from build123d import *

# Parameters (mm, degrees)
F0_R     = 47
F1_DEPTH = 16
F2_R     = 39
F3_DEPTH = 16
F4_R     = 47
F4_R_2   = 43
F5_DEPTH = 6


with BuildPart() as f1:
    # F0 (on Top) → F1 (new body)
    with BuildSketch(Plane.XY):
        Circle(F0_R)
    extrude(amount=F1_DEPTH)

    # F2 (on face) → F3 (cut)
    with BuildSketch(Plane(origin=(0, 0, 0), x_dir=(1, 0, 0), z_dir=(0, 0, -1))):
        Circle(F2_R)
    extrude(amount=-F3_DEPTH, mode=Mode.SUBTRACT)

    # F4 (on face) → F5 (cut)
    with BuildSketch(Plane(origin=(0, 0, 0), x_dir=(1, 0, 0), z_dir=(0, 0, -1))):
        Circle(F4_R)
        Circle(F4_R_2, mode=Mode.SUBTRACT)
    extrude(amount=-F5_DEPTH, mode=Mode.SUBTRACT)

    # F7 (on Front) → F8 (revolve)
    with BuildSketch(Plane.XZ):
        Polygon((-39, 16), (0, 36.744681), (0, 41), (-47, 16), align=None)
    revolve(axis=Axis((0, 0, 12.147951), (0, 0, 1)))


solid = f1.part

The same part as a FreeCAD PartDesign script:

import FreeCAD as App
import Part
import Sketcher
Q = App.Units.Quantity


def add_polygon(sketch, points):
    """Adds a closed chain of lines whose ends are joined by coincident constraints."""
    first, n = sketch.GeometryCount, len(points)
    for a, b in zip(points, points[1:] + points[:1]):
        sketch.addGeometry(Part.LineSegment(App.Vector(*a, 0), App.Vector(*b, 0)), False)
    for i in range(n):
        sketch.addConstraint(Sketcher.Constraint("Coincident", first + i, 2, first + (i + 1) % n, 1))

doc = App.newDocument("Part")
body = doc.addObject("PartDesign::Body", "Body")

# Sketch on XY plane
sketch1 = body.newObject("Sketcher::SketchObject", "Sketch")
sketch1.AttachmentSupport = (doc.getObject("XY_Plane"), [""])
sketch1.MapMode = "FlatFace"
sketch1.addGeometry(Part.Circle(App.Vector(0, 0, 0), App.Vector(0, 0, 1), 47), False)
sketch1.addConstraint(Sketcher.Constraint("Coincident", 0, 3, -1, 1))
sketch1.addConstraint(Sketcher.Constraint("Diameter", 0, Q("94 mm")))
pad1 = body.newObject("PartDesign::Pad", "Pad")
pad1.Profile = sketch1
pad1.Length = 16

# Sketch on XY plane
sketch2 = body.newObject("Sketcher::SketchObject", "Sketch001")
sketch2.AttachmentSupport = (doc.getObject("XY_Plane"), [""])
sketch2.MapMode = "FlatFace"
sketch2.addGeometry(Part.Circle(App.Vector(0, 0, 0), App.Vector(0, 0, 1), 39), False)
sketch2.addConstraint(Sketcher.Constraint("Coincident", 0, 3, -1, 1))
sketch2.addConstraint(Sketcher.Constraint("Diameter", 0, Q("78 mm")))
pocket1 = body.newObject("PartDesign::Pocket", "Pocket")
pocket1.Profile = sketch2
pocket1.Length = 16
pocket1.Reversed = True

# Sketch on XY plane
sketch3 = body.newObject("Sketcher::SketchObject", "Sketch002")
sketch3.AttachmentSupport = (doc.getObject("XY_Plane"), [""])
sketch3.MapMode = "FlatFace"
sketch3.addGeometry(Part.Circle(App.Vector(0, 0, 0), App.Vector(0, 0, 1), 47), False)
sketch3.addGeometry(Part.Circle(App.Vector(0, 0, 0), App.Vector(0, 0, 1), 43), False)
sketch3.addConstraint(Sketcher.Constraint("Coincident", 0, 3, -1, 1))
sketch3.addConstraint(Sketcher.Constraint("Coincident", 1, 3, -1, 1))
sketch3.addConstraint(Sketcher.Constraint("Diameter", 0, Q("94 mm")))
sketch3.addConstraint(Sketcher.Constraint("Diameter", 1, Q("86 mm")))
pocket2 = body.newObject("PartDesign::Pocket", "Pocket001")
pocket2.Profile = sketch3
pocket2.Length = 6
pocket2.Reversed = True

# Sketch on XZ plane
sketch4 = body.newObject("Sketcher::SketchObject", "Sketch003")
sketch4.AttachmentSupport = (doc.getObject("XZ_Plane"), [""])
sketch4.MapMode = "FlatFace"
add_polygon(sketch4, [(-39, 16), (0, 36.7), (0, 41), (-47, 16)])  # lines 0-3
sketch4.addConstraint(Sketcher.Constraint("Vertical", 1))
sketch4.addConstraint(Sketcher.Constraint("Horizontal", 3))
sketch4.addConstraint(Sketcher.Constraint("PointOnObject", 0, 2, -2))
sketch4.addConstraint(Sketcher.Constraint("Parallel", 0, 2))
sketch4.addConstraint(Sketcher.Constraint("DistanceX", 3, 1, 3, 2, Q("8 mm")))
sketch4.addConstraint(Sketcher.Constraint("DistanceY", -1, 1, 1, 2, Q("41 mm")))
sketch4.addConstraint(Sketcher.Constraint("DistanceX", 2, 2, -1, 1, Q("47 mm")))
sketch4.addConstraint(Sketcher.Constraint("DistanceY", -1, 1, 2, 2, Q("16 mm")))
revolution = body.newObject("PartDesign::Revolution", "Revolution")
revolution.Profile = sketch4
revolution.ReferenceAxis = (sketch4, ["V_Axis"])
revolution.Angle = 360

doc.recompute()
